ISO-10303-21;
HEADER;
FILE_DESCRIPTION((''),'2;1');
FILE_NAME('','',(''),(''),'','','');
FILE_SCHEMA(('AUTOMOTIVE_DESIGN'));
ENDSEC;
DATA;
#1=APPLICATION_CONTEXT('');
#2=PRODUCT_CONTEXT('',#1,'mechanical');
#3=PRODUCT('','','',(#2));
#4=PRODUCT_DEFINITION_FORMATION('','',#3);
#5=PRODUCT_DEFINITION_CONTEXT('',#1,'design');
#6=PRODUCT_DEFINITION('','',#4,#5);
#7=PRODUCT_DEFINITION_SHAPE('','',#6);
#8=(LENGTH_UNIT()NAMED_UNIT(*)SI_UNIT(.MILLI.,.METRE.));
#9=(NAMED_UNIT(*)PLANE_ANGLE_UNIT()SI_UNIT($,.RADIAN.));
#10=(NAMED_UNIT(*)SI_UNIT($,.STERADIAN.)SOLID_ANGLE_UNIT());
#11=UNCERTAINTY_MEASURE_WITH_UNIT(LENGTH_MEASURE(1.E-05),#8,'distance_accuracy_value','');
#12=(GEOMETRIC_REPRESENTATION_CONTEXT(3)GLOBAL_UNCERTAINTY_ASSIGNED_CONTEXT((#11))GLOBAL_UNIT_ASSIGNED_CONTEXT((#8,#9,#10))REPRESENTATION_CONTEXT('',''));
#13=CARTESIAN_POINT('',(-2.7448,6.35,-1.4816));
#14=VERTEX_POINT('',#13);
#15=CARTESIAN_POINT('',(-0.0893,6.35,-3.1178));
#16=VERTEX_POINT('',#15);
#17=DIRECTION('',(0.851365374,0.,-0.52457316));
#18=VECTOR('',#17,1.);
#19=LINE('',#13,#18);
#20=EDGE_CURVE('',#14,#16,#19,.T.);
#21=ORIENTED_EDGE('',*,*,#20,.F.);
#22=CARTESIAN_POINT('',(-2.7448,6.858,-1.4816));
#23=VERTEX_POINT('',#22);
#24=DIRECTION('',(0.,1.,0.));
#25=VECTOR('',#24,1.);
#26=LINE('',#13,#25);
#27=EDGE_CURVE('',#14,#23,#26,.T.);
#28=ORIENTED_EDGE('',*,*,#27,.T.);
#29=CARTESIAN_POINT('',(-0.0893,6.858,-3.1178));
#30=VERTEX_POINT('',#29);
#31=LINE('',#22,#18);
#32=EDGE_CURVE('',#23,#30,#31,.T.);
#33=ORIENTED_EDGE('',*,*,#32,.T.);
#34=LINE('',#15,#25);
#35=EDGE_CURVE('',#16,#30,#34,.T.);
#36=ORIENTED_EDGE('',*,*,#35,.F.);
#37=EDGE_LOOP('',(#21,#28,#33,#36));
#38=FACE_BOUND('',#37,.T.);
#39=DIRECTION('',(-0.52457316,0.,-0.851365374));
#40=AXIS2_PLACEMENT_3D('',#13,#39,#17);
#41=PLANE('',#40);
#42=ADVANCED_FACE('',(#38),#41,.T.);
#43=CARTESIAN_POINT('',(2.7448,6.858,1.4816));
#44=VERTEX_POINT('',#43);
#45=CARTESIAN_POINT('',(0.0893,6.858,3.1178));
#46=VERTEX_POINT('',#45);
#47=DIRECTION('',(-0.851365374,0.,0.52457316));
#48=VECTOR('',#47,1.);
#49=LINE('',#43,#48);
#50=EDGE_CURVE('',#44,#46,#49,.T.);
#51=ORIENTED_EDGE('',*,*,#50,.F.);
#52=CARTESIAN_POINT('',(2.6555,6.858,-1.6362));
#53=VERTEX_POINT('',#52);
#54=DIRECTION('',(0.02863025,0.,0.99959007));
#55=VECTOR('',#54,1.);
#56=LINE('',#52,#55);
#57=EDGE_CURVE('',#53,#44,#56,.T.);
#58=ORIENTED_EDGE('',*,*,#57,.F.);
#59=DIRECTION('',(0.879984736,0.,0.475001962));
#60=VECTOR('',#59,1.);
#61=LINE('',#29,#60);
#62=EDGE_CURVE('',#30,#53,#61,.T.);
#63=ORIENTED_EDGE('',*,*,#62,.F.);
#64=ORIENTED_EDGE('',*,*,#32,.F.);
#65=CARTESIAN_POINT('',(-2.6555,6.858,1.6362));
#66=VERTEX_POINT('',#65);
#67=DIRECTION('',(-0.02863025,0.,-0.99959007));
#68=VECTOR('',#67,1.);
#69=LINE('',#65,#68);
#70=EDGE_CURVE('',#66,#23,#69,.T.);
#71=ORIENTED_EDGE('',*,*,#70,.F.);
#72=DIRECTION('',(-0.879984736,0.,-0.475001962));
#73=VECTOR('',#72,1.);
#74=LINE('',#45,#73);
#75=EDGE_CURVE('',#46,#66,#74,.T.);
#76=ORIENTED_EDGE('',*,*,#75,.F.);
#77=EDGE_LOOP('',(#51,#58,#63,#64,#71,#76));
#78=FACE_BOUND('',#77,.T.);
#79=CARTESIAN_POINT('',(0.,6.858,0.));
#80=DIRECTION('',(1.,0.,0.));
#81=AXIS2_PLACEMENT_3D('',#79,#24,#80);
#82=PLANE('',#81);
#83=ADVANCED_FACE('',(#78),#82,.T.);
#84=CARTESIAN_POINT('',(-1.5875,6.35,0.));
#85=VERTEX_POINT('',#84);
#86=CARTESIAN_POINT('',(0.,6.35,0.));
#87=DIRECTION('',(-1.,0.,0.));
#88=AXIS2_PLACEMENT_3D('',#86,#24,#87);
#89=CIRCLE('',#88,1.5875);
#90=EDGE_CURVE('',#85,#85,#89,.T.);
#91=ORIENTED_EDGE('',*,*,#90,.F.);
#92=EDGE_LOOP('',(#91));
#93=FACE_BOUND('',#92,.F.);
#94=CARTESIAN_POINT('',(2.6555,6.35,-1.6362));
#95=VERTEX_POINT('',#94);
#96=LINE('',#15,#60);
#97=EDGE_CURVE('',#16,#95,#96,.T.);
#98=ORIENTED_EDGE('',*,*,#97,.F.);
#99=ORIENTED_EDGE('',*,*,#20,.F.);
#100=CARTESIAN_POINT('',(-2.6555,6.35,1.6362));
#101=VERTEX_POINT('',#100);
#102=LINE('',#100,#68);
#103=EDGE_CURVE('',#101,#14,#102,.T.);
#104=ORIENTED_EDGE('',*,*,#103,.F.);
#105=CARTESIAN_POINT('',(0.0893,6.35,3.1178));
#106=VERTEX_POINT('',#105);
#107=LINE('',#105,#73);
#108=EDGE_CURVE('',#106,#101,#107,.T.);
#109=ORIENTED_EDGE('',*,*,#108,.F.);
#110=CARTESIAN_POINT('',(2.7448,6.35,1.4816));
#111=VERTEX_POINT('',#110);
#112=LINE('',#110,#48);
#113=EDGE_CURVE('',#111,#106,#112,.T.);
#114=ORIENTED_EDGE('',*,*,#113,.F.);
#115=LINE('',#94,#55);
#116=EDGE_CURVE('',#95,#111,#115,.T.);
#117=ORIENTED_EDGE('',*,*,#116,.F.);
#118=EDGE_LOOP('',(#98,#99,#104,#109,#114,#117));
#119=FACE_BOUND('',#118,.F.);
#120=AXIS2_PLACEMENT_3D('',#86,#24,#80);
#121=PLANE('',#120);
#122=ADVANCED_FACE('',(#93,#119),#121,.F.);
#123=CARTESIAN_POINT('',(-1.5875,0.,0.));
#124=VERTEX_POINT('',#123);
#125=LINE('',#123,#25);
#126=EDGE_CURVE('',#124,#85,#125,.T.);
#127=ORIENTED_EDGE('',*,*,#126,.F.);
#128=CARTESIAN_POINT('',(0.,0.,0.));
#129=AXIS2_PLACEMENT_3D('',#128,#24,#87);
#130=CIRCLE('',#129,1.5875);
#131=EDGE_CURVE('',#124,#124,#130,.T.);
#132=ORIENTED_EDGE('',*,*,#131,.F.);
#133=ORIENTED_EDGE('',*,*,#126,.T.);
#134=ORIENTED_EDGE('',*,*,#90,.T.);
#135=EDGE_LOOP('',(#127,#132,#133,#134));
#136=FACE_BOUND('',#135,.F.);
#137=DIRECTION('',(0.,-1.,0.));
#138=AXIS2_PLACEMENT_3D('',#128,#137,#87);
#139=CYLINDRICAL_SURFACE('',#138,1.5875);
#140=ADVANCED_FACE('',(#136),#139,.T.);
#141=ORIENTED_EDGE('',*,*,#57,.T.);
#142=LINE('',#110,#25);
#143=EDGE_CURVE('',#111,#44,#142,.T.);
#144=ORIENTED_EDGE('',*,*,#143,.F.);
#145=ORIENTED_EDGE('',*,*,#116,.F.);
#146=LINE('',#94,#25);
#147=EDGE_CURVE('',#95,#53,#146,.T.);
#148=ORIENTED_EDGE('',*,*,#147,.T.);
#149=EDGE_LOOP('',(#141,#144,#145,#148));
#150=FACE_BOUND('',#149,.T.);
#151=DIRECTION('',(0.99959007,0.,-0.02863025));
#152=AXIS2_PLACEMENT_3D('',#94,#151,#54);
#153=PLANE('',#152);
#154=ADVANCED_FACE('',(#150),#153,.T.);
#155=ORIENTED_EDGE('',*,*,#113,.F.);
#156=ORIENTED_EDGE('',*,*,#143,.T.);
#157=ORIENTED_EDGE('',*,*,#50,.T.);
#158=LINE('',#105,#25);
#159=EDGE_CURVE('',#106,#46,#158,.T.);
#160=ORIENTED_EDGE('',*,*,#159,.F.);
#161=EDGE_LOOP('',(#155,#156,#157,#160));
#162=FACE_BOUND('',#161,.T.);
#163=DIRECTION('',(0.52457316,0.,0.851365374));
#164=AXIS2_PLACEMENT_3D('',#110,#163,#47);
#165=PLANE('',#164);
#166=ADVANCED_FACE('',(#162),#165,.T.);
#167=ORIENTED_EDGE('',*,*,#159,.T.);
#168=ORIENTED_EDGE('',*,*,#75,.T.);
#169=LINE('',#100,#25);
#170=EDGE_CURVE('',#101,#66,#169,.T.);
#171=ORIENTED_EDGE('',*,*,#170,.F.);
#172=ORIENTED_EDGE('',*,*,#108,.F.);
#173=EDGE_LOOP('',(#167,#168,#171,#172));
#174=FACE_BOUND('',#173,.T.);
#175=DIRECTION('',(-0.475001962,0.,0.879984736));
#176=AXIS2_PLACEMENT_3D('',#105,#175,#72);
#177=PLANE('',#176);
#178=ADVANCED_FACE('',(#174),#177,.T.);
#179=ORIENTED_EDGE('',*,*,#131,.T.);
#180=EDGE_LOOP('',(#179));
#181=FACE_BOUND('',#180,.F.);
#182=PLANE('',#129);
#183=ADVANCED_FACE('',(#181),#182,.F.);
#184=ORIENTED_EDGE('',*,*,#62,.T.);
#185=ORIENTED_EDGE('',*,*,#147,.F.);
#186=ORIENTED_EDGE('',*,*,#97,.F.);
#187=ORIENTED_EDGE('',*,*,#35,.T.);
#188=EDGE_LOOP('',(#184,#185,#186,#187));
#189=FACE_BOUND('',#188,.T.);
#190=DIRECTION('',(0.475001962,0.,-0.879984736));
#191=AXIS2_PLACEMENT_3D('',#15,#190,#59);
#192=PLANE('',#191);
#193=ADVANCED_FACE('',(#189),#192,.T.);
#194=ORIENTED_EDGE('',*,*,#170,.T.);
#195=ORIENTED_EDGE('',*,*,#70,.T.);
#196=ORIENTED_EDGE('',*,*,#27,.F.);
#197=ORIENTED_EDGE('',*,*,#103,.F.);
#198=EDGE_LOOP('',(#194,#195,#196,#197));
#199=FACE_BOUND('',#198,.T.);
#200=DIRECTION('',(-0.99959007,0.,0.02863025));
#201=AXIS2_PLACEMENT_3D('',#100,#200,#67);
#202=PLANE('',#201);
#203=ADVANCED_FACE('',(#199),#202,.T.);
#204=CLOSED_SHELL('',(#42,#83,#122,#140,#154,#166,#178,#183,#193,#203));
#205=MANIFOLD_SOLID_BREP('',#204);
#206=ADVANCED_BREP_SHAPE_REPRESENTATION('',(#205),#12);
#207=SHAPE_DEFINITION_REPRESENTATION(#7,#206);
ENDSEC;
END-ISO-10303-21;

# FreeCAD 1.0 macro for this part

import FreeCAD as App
import Part
import Sketcher

V = App.Vector
Q = App.Units.Quantity


def add_polygon(sketch, points):
    """Adds a closed chain of lines whose ends are joined by coincident constraints."""
    first, n = sketch.GeometryCount, len(points)
    for a, b in zip(points, points[1:] + points[:1]):
        sketch.addGeometry(Part.LineSegment(App.Vector(*a, 0), App.Vector(*b, 0)), False)
    for i in range(n):
        sketch.addConstraint(Sketcher.Constraint("Coincident", first + i, 2, first + (i + 1) % n, 1))

doc = App.newDocument("Part")
body = doc.addObject("PartDesign::Body", "Body")

# Sketch on XZ plane
sketch1 = doc.addObject("Sketcher::SketchObject", "Sketch")
body.addObject(sketch1)
sketch1.AttachmentSupport = (doc.XZ_Plane, [""])
sketch1.MapMode = "FlatFace"
sketch1.addGeometry(Part.Circle(V(0, 0, 0), V(0, 0, 1), 1.6), False)
sketch1.addConstraint(Sketcher.Constraint("Coincident", 0, 3, -1, 1))
sketch1.addConstraint(Sketcher.Constraint("Diameter", 0, Q("0.125 in")))
pad1 = doc.addObject("PartDesign::Pad", "Pad")
body.addObject(pad1)
pad1.Profile = sketch1
pad1.Length = Q("0.25 in")
pad1.Reversed = True

# Sketch on XZ plane
sketch2 = doc.addObject("Sketcher::SketchObject", "Sketch001")
body.addObject(sketch2)
sketch2.AttachmentSupport = (doc.XZ_Plane, [""])
sketch2.MapMode = "FlatFace"
sketch2.AttachmentOffset = App.Placement(V(0, 0, -0.25 * 25.4), App.Rotation())
add_polygon(sketch2, [(-2.7, -1.5), (-2.7, 1.6), (0.1, 3.1), (2.7, 1.5), (2.7, -1.6), (-0.1, -3.1)])  # lines 0-5
sketch2.addConstraint(Sketcher.Constraint("Symmetric", 0, 2, 3, 2, -1, 1))
sketch2.addConstraint(Sketcher.Constraint("Symmetric", 1, 2, 4, 2, -1, 1))
sketch2.addConstraint(Sketcher.Constraint("Symmetric", 2, 2, 5, 2, -1, 1))
sketch2.addConstraint(Sketcher.Constraint("Equal", 0, 1))
sketch2.addConstraint(Sketcher.Constraint("Equal", 1, 2))
sketch2.addConstraint(Sketcher.Constraint("Angle", 0, Q("88.3594 deg")))
sketch2.addConstraint(Sketcher.Constraint("Angle", 1, Q("28.3595 deg")))
sketch2.addConstraint(Sketcher.Constraint("Angle", 2, Q("-31.6395 deg")))
sketch2.addConstraint(Sketcher.Constraint("Distance", 0, Q("0.1228 in")))
pad2 = doc.addObject("PartDesign::Pad", "Pad001")
body.addObject(pad2)
pad2.Profile = sketch2
pad2.Length = Q("0.02 in")
pad2.Reversed = True

doc.recompute()
